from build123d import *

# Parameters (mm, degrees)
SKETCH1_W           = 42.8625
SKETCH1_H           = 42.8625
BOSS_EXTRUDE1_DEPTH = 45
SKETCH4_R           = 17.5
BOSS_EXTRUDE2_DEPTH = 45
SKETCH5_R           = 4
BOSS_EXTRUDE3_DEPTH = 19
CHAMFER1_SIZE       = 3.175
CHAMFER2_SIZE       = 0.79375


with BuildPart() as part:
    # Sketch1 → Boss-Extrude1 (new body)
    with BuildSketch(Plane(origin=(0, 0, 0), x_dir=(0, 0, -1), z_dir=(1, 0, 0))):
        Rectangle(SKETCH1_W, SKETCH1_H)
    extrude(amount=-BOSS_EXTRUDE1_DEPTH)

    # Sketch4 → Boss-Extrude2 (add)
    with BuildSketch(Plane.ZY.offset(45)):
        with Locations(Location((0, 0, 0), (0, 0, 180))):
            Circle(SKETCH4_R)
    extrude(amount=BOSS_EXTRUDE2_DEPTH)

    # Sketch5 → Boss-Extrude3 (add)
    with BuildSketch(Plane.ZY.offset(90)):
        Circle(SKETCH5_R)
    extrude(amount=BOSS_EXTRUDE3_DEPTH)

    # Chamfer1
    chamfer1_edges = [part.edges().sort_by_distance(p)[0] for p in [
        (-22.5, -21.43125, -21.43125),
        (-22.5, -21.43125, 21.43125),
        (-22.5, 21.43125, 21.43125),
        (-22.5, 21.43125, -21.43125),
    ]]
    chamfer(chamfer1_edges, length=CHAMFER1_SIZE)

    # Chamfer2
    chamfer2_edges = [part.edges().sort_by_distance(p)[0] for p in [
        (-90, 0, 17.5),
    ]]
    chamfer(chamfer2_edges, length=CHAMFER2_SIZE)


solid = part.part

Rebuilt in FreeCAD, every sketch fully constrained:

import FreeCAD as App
import Part
import Sketcher
from FreeCAD import Vector
Q = App.Units.Quantity


def edges_at(feature, points):
    """Names of the edges that pass closest to the given points."""
    edges = feature.Shape.Edges
    near = lambda p: min(range(len(edges)), key=lambda i: edges[i].distToShape(Part.Vertex(*p))[0])
    return sorted({f"Edge{near(p) + 1}" for p in points})

doc = App.newDocument("Part")
body = doc.addObject("PartDesign::Body", "Body")

sketch1 = doc.addObject("Sketcher::SketchObject", "Sketch")
body.addObject(sketch1)
sketch1.AttachmentSupport = (doc.YZ_Plane, [""])
sketch1.MapMode = "FlatFace"
sketch1.addGeometry(Part.LineSegment(Vector(21, 21, 0), Vector(-21, 21, 0)), False)
sketch1.addGeometry(Part.LineSegment(Vector(-21, 21, 0), Vector(-21, -21, 0)), False)
sketch1.addGeometry(Part.LineSegment(Vector(-21, -21, 0), Vector(21, -21, 0)), False)
sketch1.addGeometry(Part.LineSegment(Vector(21, -21, 0), Vector(21, 21, 0)), False)
sketch1.addConstraint(Sketcher.Constraint("Coincident", 0, 2, 1, 1))
sketch1.addConstraint(Sketcher.Constraint("Coincident", 1, 2, 2, 1))
sketch1.addConstraint(Sketcher.Constraint("Coincident", 2, 2, 3, 1))
sketch1.addConstraint(Sketcher.Constraint("Coincident", 3, 2, 0, 1))
sketch1.addConstraint(Sketcher.Constraint("Horizontal", 0))
sketch1.addConstraint(Sketcher.Constraint("Vertical", 1))
sketch1.addConstraint(Sketcher.Constraint("Horizontal", 2))
sketch1.addConstraint(Sketcher.Constraint("Vertical", 3))
sketch1.addConstraint(Sketcher.Constraint("Symmetric", 0, 2, 2, 2, -1, 1))
sketch1.addConstraint(Sketcher.Constraint("Equal", 2, 1))
sketch1.addConstraint(Sketcher.Constraint("DistanceX", 0, 2, 0, 1, Q("42.8625 mm")))
pad1 = doc.addObject("PartDesign::Pad", "Pad")
body.addObject(pad1)
pad1.Profile = sketch1
pad1.Length = 45
pad1.Reversed = True

sketch2 = doc.addObject("Sketcher::SketchObject", "Sketch001")
body.addObject(sketch2)
sketch2.AttachmentSupport = (doc.YZ_Plane, [""])
sketch2.MapMode = "FlatFace"
sketch2.AttachmentOffset = App.Placement(Vector(0, 0, -45), App.Rotation())
sketch2.addGeometry(Part.Circle(Vector(0, 0, 0), Vector(0, 0, 1), 18), False)
sketch2.addConstraint(Sketcher.Constraint("Coincident", 0, 3, -1, 1))
sketch2.addConstraint(Sketcher.Constraint("Diameter", 0, Q("35 mm")))
pad2 = doc.addObject("PartDesign::Pad", "Pad001")
body.addObject(pad2)
pad2.Profile = sketch2
pad2.Length = 45
pad2.Reversed = True

sketch3 = doc.addObject("Sketcher::SketchObject", "Sketch002")
body.addObject(sketch3)
sketch3.AttachmentSupport = (doc.YZ_Plane, [""])
sketch3.MapMode = "FlatFace"
sketch3.AttachmentOffset = App.Placement(Vector(0, 0, -90), App.Rotation())
sketch3.addGeometry(Part.Circle(Vector(0, 0, 0), Vector(0, 0, 1), 4), False)
sketch3.addConstraint(Sketcher.Constraint("Coincident", 0, 3, -1, 1))
sketch3.addConstraint(Sketcher.Constraint("Diameter", 0, Q("8 mm")))
pad3 = doc.addObject("PartDesign::Pad", "Pad002")
body.addObject(pad3)
pad3.Profile = sketch3
pad3.Length = 19
pad3.Reversed = True
doc.recompute()

chamfer = doc.addObject("PartDesign::Chamfer", "Chamfer")
body.addObject(chamfer)
chamfer.Base = (pad3, edges_at(pad3, [
    (-22.5, -21.431, -21.431),
    (-22.5, -21.431, 21.431),
    (-22.5, 21.431, 21.431),
    (-22.5, 21.431, -21.431),
]))
chamfer.Size = 3.175
doc.recompute()

chamfer2 = doc.addObject("PartDesign::Chamfer", "Chamfer001")
body.addObject(chamfer2)
chamfer2.Base = (chamfer, edges_at(chamfer, [(-90, 0, 17.5)]))
chamfer2.Size = 0.79375

doc.recompute()
